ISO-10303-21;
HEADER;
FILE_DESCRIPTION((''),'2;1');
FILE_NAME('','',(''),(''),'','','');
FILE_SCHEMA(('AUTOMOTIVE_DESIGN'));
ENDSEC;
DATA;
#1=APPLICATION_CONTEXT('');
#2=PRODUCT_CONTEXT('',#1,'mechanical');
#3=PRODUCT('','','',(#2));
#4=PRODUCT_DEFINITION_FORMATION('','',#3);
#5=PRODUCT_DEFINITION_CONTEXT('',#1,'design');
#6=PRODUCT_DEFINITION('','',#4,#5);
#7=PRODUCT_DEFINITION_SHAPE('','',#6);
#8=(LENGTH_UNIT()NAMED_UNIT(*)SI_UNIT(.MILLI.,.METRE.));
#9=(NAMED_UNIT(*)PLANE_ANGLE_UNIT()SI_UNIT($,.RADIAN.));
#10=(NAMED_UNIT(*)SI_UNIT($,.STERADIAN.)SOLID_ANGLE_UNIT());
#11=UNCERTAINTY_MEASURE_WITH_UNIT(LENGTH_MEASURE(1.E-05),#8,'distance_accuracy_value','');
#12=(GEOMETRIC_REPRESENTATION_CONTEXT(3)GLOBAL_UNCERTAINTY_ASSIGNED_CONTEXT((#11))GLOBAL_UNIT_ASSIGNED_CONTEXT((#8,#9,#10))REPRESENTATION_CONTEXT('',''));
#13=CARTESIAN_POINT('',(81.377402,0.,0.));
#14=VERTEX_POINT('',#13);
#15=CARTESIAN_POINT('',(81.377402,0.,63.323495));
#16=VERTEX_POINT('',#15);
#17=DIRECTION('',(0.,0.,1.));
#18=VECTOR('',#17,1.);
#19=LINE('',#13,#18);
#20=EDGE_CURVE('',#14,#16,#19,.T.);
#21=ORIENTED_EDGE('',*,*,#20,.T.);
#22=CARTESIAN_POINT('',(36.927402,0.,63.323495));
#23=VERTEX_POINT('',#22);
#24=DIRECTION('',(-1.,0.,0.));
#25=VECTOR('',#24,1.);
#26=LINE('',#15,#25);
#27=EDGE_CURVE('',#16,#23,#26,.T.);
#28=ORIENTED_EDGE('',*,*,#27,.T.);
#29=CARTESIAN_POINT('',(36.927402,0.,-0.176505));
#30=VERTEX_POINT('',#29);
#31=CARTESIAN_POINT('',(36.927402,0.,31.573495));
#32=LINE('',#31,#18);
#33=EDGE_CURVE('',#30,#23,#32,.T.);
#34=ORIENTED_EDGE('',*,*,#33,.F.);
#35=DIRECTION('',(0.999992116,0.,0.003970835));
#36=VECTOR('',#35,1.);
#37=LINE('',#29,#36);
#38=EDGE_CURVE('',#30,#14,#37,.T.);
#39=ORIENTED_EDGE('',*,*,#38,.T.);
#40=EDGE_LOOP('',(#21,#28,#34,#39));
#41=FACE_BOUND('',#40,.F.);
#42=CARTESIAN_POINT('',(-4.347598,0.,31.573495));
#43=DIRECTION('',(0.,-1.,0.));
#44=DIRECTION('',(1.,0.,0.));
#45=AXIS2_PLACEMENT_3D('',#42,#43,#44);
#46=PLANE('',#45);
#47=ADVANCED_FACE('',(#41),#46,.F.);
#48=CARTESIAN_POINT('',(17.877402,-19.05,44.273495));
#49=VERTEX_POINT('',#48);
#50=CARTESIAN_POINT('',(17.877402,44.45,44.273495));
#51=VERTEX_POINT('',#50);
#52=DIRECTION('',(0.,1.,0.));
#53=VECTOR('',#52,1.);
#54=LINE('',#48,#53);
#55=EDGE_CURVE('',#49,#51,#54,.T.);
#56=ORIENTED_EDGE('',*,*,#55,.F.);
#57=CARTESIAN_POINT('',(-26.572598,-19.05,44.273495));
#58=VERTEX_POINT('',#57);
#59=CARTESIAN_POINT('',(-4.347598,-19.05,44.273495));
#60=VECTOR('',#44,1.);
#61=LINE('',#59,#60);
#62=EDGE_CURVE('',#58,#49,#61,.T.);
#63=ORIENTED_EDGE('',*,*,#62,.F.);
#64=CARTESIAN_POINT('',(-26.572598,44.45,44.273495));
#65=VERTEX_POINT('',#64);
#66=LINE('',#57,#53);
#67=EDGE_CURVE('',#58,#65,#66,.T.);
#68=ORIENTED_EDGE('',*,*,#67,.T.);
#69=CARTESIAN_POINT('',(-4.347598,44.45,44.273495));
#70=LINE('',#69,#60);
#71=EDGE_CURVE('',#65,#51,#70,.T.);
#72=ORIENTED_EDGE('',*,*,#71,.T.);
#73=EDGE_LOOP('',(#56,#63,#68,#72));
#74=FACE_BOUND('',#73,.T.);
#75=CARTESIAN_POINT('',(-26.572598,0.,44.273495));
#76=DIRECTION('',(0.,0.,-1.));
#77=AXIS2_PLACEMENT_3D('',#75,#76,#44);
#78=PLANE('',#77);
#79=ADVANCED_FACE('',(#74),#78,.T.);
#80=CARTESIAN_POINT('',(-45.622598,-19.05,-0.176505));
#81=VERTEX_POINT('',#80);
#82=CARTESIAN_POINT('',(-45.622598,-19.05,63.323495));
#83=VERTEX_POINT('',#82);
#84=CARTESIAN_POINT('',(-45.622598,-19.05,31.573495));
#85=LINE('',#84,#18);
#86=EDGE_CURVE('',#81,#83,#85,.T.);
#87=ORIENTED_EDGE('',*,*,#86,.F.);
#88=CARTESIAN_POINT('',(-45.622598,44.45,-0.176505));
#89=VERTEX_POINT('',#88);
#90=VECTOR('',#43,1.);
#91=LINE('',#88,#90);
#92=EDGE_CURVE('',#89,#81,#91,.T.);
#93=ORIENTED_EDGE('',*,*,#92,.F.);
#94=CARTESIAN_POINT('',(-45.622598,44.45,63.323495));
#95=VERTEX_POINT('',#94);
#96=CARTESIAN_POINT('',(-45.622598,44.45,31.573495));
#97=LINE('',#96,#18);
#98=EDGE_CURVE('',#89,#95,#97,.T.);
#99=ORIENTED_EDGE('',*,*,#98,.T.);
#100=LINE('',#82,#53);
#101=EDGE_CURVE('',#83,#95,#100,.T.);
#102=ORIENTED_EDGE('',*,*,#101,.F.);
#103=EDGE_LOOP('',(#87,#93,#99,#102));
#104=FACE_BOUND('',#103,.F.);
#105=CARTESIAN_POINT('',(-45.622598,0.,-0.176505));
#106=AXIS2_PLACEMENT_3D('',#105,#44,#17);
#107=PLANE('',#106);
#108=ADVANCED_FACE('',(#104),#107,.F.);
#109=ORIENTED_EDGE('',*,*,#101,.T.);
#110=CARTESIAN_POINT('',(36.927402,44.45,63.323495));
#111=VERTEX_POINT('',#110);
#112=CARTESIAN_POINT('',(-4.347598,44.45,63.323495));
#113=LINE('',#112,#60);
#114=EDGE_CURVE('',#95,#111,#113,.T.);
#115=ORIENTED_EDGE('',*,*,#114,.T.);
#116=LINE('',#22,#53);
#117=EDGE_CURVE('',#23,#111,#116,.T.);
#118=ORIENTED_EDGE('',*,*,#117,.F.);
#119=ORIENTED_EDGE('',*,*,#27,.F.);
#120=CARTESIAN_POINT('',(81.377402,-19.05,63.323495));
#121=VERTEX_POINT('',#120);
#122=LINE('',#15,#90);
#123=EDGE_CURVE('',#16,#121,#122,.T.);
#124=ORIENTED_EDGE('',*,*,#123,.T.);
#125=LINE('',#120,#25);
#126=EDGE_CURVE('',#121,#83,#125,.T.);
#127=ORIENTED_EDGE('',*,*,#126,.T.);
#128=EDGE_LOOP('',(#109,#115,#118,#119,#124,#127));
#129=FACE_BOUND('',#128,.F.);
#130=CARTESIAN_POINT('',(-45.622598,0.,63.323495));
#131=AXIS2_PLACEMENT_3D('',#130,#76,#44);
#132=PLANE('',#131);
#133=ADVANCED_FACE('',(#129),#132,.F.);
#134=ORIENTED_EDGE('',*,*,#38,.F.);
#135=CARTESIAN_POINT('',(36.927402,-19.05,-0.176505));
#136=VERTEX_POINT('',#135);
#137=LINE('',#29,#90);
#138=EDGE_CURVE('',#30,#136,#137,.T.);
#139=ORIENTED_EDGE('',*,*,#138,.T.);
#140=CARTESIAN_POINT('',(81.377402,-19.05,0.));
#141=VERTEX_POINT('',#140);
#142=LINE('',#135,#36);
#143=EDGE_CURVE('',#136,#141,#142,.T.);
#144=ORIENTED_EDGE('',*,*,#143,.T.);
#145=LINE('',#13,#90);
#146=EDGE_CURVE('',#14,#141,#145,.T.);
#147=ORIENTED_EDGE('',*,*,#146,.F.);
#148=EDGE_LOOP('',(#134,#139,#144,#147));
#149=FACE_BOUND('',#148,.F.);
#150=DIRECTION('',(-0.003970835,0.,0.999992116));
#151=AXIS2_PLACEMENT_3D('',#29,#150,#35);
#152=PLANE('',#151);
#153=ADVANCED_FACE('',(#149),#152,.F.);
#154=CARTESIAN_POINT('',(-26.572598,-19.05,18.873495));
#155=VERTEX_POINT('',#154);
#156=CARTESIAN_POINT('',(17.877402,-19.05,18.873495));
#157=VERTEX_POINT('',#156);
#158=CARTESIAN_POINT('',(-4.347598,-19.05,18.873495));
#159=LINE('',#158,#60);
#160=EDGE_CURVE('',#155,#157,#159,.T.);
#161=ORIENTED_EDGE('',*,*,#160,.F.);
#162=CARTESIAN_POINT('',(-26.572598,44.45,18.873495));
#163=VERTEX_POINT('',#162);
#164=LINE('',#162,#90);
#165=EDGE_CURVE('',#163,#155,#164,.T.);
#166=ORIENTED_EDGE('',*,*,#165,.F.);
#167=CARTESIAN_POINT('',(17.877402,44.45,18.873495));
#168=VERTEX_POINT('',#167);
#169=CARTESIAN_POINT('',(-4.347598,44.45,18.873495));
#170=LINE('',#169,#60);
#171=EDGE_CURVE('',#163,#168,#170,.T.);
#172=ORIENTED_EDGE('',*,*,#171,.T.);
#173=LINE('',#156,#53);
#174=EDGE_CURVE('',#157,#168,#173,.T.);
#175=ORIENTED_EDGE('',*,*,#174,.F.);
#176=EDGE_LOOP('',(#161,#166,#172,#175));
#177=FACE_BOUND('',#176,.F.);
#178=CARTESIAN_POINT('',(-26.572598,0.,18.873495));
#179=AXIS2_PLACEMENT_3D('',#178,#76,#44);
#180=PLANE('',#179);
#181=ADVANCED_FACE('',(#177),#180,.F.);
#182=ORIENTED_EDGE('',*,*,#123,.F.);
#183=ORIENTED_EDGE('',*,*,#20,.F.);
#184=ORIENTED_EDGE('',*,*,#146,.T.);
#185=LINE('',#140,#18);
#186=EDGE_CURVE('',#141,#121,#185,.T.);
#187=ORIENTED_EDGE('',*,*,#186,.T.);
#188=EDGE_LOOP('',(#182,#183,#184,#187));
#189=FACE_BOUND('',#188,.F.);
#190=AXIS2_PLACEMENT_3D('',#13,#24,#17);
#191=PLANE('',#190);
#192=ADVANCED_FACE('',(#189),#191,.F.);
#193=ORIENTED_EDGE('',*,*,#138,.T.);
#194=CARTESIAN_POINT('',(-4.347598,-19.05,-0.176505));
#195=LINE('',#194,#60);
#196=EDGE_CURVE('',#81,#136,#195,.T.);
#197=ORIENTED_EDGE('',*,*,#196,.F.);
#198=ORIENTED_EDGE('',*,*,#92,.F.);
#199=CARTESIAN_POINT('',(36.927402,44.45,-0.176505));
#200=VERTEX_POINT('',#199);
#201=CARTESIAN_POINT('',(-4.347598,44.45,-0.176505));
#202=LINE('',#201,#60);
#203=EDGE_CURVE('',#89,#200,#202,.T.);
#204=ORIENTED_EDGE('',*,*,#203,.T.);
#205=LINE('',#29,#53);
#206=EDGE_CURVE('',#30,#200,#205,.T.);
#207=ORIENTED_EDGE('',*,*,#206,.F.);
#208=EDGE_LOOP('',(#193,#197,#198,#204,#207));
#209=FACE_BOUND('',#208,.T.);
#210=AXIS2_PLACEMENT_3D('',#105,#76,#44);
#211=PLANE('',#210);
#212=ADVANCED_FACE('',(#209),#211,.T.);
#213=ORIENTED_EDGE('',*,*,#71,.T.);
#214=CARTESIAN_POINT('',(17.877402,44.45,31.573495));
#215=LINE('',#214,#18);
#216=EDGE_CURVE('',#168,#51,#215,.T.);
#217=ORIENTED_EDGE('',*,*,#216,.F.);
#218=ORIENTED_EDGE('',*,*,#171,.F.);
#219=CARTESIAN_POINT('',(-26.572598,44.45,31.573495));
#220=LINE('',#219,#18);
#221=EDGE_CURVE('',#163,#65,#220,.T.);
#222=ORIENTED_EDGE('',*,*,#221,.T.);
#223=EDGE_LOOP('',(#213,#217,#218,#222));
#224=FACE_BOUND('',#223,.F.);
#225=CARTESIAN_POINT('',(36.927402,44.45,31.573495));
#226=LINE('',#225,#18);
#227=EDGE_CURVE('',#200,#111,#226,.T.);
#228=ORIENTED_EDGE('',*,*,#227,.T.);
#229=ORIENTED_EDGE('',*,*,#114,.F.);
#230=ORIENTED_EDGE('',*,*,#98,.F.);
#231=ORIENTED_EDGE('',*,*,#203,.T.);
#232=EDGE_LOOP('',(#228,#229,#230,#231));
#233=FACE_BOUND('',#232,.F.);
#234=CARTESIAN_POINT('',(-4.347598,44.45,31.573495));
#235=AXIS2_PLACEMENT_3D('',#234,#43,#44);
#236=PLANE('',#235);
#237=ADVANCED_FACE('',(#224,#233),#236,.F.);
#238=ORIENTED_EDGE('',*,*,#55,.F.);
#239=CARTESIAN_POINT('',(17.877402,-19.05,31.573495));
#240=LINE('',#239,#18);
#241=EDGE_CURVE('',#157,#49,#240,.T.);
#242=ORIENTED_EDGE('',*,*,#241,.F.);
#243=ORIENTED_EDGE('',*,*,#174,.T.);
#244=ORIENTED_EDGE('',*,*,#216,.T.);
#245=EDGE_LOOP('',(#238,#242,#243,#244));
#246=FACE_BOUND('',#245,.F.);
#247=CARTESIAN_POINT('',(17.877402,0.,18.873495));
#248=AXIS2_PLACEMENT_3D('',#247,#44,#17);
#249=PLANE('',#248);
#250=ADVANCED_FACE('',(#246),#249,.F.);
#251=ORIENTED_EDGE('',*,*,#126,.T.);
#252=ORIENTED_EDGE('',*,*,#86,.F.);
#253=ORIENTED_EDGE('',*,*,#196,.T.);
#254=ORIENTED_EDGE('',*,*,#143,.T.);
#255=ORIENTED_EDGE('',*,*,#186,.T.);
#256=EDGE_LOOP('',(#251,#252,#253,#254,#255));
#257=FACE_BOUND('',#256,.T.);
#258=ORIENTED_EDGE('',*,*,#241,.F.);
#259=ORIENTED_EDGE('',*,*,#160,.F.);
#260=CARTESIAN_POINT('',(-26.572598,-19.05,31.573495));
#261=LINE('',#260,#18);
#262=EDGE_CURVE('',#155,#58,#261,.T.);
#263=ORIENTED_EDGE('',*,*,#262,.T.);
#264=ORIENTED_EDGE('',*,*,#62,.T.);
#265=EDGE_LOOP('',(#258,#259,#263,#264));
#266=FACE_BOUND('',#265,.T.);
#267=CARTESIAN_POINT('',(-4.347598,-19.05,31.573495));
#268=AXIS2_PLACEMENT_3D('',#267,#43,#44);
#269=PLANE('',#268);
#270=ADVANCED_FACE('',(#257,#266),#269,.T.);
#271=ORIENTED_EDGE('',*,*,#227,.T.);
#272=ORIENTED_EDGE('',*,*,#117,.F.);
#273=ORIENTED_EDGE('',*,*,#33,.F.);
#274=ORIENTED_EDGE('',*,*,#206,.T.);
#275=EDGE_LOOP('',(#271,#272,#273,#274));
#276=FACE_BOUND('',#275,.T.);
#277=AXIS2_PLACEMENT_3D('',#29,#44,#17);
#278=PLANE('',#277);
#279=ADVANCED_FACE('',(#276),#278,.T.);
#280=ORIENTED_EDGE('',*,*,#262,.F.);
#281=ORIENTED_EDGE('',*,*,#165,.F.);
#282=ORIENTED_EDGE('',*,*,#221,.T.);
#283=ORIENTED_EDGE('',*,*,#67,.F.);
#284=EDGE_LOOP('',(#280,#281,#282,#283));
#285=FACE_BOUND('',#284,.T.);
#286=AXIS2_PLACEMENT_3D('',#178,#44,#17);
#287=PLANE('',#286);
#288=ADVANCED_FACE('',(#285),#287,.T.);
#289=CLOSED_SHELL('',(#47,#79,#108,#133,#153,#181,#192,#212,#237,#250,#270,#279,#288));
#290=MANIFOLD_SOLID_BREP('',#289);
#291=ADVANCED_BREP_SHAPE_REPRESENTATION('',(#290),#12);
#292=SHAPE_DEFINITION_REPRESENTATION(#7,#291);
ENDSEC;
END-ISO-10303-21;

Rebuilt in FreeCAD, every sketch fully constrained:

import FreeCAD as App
import Part
import Sketcher
from FreeCAD import Vector
Q = App.Units.Quantity

doc = App.newDocument("Part")
params = doc.addObject("Spreadsheet::Sheet", "Params")
for row, (alias, value) in enumerate([
    ("sketch1_width", "5 in"),
    ("sketch1_height", "1 in"),
    ("sketch1_height2", "2.5 in"),
    ("sketch1_width2", "3.25 in"),
    ("sketch1_width3", "1.75 in"),
    ("pad1_length", "0.75 in"),
    ("sketch2_height", "1 in"),
    ("sketch2_height2", "2.5 in"),
    ("sketch2_width", "3.25 in"),
    ("sketch2_width2", "1.75 in"),
    ("pad2_length", "1.75 in"),
], start=1):
    params.set(f"A{row}", alias)
    params.set(f"B{row}", "=" + value)
    params.setAlias(f"B{row}", alias)

body = doc.addObject("PartDesign::Body", "Body")

# Sketch on XZ plane
sketch1 = doc.addObject("Sketcher::SketchObject", "Sketch")
body.addObject(sketch1)
sketch1.AttachmentSupport = (doc.XZ_Plane, [""])
sketch1.MapMode = "FlatFace"
sketch1.addGeometry(Part.LineSegment(Vector(-46, 63, 0), Vector(-46, 0, 0)), False)
sketch1.addGeometry(Part.LineSegment(Vector(-46, 0, 0), Vector(37, 0, 0)), False)
sketch1.addGeometry(Part.LineSegment(Vector(37, 0, 0), Vector(81, 0, 0)), False)
sketch1.addGeometry(Part.LineSegment(Vector(81, 0, 0), Vector(81, 63, 0)), False)
sketch1.addGeometry(Part.LineSegment(Vector(81, 63, 0), Vector(-46, 63, 0)), False)
sketch1.addGeometry(Part.LineSegment(Vector(18, 19, 0), Vector(-27, 19, 0)), False)
sketch1.addGeometry(Part.LineSegment(Vector(-27, 19, 0), Vector(-27, 44, 0)), False)
sketch1.addGeometry(Part.LineSegment(Vector(-27, 44, 0), Vector(18, 44, 0)), False)
sketch1.addGeometry(Part.LineSegment(Vector(18, 44, 0), Vector(18, 19, 0)), False)
sketch1.addConstraint(Sketcher.Constraint("Coincident", 0, 2, 1, 1))
sketch1.addConstraint(Sketcher.Constraint("Coincident", 1, 2, 2, 1))
sketch1.addConstraint(Sketcher.Constraint("Coincident", 2, 2, 3, 1))
sketch1.addConstraint(Sketcher.Constraint("Coincident", 3, 2, 4, 1))
sketch1.addConstraint(Sketcher.Constraint("Coincident", 4, 2, 0, 1))
sketch1.addConstraint(Sketcher.Constraint("Coincident", 5, 2, 6, 1))
sketch1.addConstraint(Sketcher.Constraint("Coincident", 6, 2, 7, 1))
sketch1.addConstraint(Sketcher.Constraint("Coincident", 7, 2, 8, 1))
sketch1.addConstraint(Sketcher.Constraint("Coincident", 8, 2, 5, 1))
sketch1.addConstraint(Sketcher.Constraint("Vertical", 0))
sketch1.addConstraint(Sketcher.Constraint("Horizontal", 1))
sketch1.addConstraint(Sketcher.Constraint("Vertical", 3))
sketch1.addConstraint(Sketcher.Constraint("Horizontal", 4))
sketch1.addConstraint(Sketcher.Constraint("Horizontal", 5))
sketch1.addConstraint(Sketcher.Constraint("Vertical", 6))
sketch1.addConstraint(Sketcher.Constraint("Horizontal", 7))
sketch1.addConstraint(Sketcher.Constraint("Vertical", 8))
sketch1.addConstraint(Sketcher.Constraint("PointOnObject", 2, 2, -1))
sketch1.addConstraint(Sketcher.Constraint("DistanceX", 4, 2, 4, 1, Q("5 in")))
sketch1.addConstraint(Sketcher.Constraint("DistanceY", 6, 1, 6, 2, Q("1 in")))
sketch1.addConstraint(Sketcher.Constraint("DistanceY", 0, 2, 0, 1, Q("2.5 in")))
sketch1.addConstraint(Sketcher.Constraint("DistanceX", 1, 1, 1, 2, Q("3.25 in")))
sketch1.addConstraint(Sketcher.Constraint("DistanceX", 5, 2, 5, 1, Q("1.75 in")))
sketch1.addConstraint(Sketcher.Constraint("DistanceX", 5, 2, 1, 2, Q("2.5 in")))
sketch1.addConstraint(Sketcher.Constraint("DistanceY", 0, 2, 5, 2, Q("0.75 in")))
sketch1.addConstraint(Sketcher.Constraint("DistanceX", 0, 2, -1, 1, 45.622598))
sketch1.addConstraint(Sketcher.Constraint("DistanceY", 3, 1, 3, 2, 63.323495))
sketch1.setExpression("Constraints[18]", "Params.sketch1_width")
sketch1.setExpression("Constraints[19]", "Params.sketch1_height")
sketch1.setExpression("Constraints[20]", "Params.sketch1_height2")
sketch1.setExpression("Constraints[21]", "Params.sketch1_width2")
sketch1.setExpression("Constraints[22]", "Params.sketch1_width3")
pad1 = doc.addObject("PartDesign::Pad", "Pad")
body.addObject(pad1)
pad1.Profile = sketch1
pad1.setExpression("Length", "Params.pad1_length")

# Sketch on XZ plane
sketch2 = doc.addObject("Sketcher::SketchObject", "Sketch001")
body.addObject(sketch2)
sketch2.AttachmentSupport = (doc.XZ_Plane, [""])
sketch2.MapMode = "FlatFace"
sketch2.addGeometry(Part.LineSegment(Vector(-46, 63, 0), Vector(-46, 0, 0)), False)
sketch2.addGeometry(Part.LineSegment(Vector(-46, 0, 0), Vector(37, 0, 0)), False)
sketch2.addGeometry(Part.LineSegment(Vector(37, 0, 0), Vector(37, 63, 0)), False)
sketch2.addGeometry(Part.LineSegment(Vector(37, 63, 0), Vector(-46, 63, 0)), False)
sketch2.addGeometry(Part.LineSegment(Vector(18, 19, 0), Vector(-27, 19, 0)), False)
sketch2.addGeometry(Part.LineSegment(Vector(-27, 19, 0), Vector(-27, 44, 0)), False)
sketch2.addGeometry(Part.LineSegment(Vector(-27, 44, 0), Vector(18, 44, 0)), False)
sketch2.addGeometry(Part.LineSegment(Vector(18, 44, 0), Vector(18, 19, 0)), False)
sketch2.addConstraint(Sketcher.Constraint("Coincident", 0, 2, 1, 1))
sketch2.addConstraint(Sketcher.Constraint("Coincident", 1, 2, 2, 1))
sketch2.addConstraint(Sketcher.Constraint("Coincident", 2, 2, 3, 1))
sketch2.addConstraint(Sketcher.Constraint("Coincident", 3, 2, 0, 1))
sketch2.addConstraint(Sketcher.Constraint("Coincident", 4, 2, 5, 1))
sketch2.addConstraint(Sketcher.Constraint("Coincident", 5, 2, 6, 1))
sketch2.addConstraint(Sketcher.Constraint("Coincident", 6, 2, 7, 1))
sketch2.addConstraint(Sketcher.Constraint("Coincident", 7, 2, 4, 1))
sketch2.addConstraint(Sketcher.Constraint("Vertical", 0))
sketch2.addConstraint(Sketcher.Constraint("Horizontal", 1))
sketch2.addConstraint(Sketcher.Constraint("Vertical", 2))
sketch2.addConstraint(Sketcher.Constraint("Horizontal", 3))
sketch2.addConstraint(Sketcher.Constraint("Horizontal", 4))
sketch2.addConstraint(Sketcher.Constraint("Vertical", 5))
sketch2.addConstraint(Sketcher.Constraint("Horizontal", 6))
sketch2.addConstraint(Sketcher.Constraint("Vertical", 7))
sketch2.addConstraint(Sketcher.Constraint("DistanceY", 5, 1, 5, 2, Q("1 in")))
sketch2.addConstraint(Sketcher.Constraint("DistanceY", 0, 2, 0, 1, Q("2.5 in")))
sketch2.addConstraint(Sketcher.Constraint("DistanceX", 1, 1, 1, 2, Q("3.25 in")))
sketch2.addConstraint(Sketcher.Constraint("DistanceX", 4, 2, 4, 1, Q("1.75 in")))
sketch2.addConstraint(Sketcher.Constraint("DistanceX", 4, 2, 1, 2, Q("2.5 in")))
sketch2.addConstraint(Sketcher.Constraint("DistanceY", 0, 2, 4, 2, Q("0.75 in")))
sketch2.addConstraint(Sketcher.Constraint("DistanceX", 0, 2, -1, 1, 45.622598))
sketch2.addConstraint(Sketcher.Constraint("DistanceY", 0, 2, -1, 1, 0.176505))
sketch2.setExpression("Constraints[16]", "Params.sketch2_height")
sketch2.setExpression("Constraints[17]", "Params.sketch2_height2")
sketch2.setExpression("Constraints[18]", "Params.sketch2_width")
sketch2.setExpression("Constraints[19]", "Params.sketch2_width2")
pad2 = doc.addObject("PartDesign::Pad", "Pad001")
body.addObject(pad2)
pad2.Profile = sketch2
pad2.setExpression("Length", "Params.pad2_length")
pad2.Reversed = True

doc.recompute()
